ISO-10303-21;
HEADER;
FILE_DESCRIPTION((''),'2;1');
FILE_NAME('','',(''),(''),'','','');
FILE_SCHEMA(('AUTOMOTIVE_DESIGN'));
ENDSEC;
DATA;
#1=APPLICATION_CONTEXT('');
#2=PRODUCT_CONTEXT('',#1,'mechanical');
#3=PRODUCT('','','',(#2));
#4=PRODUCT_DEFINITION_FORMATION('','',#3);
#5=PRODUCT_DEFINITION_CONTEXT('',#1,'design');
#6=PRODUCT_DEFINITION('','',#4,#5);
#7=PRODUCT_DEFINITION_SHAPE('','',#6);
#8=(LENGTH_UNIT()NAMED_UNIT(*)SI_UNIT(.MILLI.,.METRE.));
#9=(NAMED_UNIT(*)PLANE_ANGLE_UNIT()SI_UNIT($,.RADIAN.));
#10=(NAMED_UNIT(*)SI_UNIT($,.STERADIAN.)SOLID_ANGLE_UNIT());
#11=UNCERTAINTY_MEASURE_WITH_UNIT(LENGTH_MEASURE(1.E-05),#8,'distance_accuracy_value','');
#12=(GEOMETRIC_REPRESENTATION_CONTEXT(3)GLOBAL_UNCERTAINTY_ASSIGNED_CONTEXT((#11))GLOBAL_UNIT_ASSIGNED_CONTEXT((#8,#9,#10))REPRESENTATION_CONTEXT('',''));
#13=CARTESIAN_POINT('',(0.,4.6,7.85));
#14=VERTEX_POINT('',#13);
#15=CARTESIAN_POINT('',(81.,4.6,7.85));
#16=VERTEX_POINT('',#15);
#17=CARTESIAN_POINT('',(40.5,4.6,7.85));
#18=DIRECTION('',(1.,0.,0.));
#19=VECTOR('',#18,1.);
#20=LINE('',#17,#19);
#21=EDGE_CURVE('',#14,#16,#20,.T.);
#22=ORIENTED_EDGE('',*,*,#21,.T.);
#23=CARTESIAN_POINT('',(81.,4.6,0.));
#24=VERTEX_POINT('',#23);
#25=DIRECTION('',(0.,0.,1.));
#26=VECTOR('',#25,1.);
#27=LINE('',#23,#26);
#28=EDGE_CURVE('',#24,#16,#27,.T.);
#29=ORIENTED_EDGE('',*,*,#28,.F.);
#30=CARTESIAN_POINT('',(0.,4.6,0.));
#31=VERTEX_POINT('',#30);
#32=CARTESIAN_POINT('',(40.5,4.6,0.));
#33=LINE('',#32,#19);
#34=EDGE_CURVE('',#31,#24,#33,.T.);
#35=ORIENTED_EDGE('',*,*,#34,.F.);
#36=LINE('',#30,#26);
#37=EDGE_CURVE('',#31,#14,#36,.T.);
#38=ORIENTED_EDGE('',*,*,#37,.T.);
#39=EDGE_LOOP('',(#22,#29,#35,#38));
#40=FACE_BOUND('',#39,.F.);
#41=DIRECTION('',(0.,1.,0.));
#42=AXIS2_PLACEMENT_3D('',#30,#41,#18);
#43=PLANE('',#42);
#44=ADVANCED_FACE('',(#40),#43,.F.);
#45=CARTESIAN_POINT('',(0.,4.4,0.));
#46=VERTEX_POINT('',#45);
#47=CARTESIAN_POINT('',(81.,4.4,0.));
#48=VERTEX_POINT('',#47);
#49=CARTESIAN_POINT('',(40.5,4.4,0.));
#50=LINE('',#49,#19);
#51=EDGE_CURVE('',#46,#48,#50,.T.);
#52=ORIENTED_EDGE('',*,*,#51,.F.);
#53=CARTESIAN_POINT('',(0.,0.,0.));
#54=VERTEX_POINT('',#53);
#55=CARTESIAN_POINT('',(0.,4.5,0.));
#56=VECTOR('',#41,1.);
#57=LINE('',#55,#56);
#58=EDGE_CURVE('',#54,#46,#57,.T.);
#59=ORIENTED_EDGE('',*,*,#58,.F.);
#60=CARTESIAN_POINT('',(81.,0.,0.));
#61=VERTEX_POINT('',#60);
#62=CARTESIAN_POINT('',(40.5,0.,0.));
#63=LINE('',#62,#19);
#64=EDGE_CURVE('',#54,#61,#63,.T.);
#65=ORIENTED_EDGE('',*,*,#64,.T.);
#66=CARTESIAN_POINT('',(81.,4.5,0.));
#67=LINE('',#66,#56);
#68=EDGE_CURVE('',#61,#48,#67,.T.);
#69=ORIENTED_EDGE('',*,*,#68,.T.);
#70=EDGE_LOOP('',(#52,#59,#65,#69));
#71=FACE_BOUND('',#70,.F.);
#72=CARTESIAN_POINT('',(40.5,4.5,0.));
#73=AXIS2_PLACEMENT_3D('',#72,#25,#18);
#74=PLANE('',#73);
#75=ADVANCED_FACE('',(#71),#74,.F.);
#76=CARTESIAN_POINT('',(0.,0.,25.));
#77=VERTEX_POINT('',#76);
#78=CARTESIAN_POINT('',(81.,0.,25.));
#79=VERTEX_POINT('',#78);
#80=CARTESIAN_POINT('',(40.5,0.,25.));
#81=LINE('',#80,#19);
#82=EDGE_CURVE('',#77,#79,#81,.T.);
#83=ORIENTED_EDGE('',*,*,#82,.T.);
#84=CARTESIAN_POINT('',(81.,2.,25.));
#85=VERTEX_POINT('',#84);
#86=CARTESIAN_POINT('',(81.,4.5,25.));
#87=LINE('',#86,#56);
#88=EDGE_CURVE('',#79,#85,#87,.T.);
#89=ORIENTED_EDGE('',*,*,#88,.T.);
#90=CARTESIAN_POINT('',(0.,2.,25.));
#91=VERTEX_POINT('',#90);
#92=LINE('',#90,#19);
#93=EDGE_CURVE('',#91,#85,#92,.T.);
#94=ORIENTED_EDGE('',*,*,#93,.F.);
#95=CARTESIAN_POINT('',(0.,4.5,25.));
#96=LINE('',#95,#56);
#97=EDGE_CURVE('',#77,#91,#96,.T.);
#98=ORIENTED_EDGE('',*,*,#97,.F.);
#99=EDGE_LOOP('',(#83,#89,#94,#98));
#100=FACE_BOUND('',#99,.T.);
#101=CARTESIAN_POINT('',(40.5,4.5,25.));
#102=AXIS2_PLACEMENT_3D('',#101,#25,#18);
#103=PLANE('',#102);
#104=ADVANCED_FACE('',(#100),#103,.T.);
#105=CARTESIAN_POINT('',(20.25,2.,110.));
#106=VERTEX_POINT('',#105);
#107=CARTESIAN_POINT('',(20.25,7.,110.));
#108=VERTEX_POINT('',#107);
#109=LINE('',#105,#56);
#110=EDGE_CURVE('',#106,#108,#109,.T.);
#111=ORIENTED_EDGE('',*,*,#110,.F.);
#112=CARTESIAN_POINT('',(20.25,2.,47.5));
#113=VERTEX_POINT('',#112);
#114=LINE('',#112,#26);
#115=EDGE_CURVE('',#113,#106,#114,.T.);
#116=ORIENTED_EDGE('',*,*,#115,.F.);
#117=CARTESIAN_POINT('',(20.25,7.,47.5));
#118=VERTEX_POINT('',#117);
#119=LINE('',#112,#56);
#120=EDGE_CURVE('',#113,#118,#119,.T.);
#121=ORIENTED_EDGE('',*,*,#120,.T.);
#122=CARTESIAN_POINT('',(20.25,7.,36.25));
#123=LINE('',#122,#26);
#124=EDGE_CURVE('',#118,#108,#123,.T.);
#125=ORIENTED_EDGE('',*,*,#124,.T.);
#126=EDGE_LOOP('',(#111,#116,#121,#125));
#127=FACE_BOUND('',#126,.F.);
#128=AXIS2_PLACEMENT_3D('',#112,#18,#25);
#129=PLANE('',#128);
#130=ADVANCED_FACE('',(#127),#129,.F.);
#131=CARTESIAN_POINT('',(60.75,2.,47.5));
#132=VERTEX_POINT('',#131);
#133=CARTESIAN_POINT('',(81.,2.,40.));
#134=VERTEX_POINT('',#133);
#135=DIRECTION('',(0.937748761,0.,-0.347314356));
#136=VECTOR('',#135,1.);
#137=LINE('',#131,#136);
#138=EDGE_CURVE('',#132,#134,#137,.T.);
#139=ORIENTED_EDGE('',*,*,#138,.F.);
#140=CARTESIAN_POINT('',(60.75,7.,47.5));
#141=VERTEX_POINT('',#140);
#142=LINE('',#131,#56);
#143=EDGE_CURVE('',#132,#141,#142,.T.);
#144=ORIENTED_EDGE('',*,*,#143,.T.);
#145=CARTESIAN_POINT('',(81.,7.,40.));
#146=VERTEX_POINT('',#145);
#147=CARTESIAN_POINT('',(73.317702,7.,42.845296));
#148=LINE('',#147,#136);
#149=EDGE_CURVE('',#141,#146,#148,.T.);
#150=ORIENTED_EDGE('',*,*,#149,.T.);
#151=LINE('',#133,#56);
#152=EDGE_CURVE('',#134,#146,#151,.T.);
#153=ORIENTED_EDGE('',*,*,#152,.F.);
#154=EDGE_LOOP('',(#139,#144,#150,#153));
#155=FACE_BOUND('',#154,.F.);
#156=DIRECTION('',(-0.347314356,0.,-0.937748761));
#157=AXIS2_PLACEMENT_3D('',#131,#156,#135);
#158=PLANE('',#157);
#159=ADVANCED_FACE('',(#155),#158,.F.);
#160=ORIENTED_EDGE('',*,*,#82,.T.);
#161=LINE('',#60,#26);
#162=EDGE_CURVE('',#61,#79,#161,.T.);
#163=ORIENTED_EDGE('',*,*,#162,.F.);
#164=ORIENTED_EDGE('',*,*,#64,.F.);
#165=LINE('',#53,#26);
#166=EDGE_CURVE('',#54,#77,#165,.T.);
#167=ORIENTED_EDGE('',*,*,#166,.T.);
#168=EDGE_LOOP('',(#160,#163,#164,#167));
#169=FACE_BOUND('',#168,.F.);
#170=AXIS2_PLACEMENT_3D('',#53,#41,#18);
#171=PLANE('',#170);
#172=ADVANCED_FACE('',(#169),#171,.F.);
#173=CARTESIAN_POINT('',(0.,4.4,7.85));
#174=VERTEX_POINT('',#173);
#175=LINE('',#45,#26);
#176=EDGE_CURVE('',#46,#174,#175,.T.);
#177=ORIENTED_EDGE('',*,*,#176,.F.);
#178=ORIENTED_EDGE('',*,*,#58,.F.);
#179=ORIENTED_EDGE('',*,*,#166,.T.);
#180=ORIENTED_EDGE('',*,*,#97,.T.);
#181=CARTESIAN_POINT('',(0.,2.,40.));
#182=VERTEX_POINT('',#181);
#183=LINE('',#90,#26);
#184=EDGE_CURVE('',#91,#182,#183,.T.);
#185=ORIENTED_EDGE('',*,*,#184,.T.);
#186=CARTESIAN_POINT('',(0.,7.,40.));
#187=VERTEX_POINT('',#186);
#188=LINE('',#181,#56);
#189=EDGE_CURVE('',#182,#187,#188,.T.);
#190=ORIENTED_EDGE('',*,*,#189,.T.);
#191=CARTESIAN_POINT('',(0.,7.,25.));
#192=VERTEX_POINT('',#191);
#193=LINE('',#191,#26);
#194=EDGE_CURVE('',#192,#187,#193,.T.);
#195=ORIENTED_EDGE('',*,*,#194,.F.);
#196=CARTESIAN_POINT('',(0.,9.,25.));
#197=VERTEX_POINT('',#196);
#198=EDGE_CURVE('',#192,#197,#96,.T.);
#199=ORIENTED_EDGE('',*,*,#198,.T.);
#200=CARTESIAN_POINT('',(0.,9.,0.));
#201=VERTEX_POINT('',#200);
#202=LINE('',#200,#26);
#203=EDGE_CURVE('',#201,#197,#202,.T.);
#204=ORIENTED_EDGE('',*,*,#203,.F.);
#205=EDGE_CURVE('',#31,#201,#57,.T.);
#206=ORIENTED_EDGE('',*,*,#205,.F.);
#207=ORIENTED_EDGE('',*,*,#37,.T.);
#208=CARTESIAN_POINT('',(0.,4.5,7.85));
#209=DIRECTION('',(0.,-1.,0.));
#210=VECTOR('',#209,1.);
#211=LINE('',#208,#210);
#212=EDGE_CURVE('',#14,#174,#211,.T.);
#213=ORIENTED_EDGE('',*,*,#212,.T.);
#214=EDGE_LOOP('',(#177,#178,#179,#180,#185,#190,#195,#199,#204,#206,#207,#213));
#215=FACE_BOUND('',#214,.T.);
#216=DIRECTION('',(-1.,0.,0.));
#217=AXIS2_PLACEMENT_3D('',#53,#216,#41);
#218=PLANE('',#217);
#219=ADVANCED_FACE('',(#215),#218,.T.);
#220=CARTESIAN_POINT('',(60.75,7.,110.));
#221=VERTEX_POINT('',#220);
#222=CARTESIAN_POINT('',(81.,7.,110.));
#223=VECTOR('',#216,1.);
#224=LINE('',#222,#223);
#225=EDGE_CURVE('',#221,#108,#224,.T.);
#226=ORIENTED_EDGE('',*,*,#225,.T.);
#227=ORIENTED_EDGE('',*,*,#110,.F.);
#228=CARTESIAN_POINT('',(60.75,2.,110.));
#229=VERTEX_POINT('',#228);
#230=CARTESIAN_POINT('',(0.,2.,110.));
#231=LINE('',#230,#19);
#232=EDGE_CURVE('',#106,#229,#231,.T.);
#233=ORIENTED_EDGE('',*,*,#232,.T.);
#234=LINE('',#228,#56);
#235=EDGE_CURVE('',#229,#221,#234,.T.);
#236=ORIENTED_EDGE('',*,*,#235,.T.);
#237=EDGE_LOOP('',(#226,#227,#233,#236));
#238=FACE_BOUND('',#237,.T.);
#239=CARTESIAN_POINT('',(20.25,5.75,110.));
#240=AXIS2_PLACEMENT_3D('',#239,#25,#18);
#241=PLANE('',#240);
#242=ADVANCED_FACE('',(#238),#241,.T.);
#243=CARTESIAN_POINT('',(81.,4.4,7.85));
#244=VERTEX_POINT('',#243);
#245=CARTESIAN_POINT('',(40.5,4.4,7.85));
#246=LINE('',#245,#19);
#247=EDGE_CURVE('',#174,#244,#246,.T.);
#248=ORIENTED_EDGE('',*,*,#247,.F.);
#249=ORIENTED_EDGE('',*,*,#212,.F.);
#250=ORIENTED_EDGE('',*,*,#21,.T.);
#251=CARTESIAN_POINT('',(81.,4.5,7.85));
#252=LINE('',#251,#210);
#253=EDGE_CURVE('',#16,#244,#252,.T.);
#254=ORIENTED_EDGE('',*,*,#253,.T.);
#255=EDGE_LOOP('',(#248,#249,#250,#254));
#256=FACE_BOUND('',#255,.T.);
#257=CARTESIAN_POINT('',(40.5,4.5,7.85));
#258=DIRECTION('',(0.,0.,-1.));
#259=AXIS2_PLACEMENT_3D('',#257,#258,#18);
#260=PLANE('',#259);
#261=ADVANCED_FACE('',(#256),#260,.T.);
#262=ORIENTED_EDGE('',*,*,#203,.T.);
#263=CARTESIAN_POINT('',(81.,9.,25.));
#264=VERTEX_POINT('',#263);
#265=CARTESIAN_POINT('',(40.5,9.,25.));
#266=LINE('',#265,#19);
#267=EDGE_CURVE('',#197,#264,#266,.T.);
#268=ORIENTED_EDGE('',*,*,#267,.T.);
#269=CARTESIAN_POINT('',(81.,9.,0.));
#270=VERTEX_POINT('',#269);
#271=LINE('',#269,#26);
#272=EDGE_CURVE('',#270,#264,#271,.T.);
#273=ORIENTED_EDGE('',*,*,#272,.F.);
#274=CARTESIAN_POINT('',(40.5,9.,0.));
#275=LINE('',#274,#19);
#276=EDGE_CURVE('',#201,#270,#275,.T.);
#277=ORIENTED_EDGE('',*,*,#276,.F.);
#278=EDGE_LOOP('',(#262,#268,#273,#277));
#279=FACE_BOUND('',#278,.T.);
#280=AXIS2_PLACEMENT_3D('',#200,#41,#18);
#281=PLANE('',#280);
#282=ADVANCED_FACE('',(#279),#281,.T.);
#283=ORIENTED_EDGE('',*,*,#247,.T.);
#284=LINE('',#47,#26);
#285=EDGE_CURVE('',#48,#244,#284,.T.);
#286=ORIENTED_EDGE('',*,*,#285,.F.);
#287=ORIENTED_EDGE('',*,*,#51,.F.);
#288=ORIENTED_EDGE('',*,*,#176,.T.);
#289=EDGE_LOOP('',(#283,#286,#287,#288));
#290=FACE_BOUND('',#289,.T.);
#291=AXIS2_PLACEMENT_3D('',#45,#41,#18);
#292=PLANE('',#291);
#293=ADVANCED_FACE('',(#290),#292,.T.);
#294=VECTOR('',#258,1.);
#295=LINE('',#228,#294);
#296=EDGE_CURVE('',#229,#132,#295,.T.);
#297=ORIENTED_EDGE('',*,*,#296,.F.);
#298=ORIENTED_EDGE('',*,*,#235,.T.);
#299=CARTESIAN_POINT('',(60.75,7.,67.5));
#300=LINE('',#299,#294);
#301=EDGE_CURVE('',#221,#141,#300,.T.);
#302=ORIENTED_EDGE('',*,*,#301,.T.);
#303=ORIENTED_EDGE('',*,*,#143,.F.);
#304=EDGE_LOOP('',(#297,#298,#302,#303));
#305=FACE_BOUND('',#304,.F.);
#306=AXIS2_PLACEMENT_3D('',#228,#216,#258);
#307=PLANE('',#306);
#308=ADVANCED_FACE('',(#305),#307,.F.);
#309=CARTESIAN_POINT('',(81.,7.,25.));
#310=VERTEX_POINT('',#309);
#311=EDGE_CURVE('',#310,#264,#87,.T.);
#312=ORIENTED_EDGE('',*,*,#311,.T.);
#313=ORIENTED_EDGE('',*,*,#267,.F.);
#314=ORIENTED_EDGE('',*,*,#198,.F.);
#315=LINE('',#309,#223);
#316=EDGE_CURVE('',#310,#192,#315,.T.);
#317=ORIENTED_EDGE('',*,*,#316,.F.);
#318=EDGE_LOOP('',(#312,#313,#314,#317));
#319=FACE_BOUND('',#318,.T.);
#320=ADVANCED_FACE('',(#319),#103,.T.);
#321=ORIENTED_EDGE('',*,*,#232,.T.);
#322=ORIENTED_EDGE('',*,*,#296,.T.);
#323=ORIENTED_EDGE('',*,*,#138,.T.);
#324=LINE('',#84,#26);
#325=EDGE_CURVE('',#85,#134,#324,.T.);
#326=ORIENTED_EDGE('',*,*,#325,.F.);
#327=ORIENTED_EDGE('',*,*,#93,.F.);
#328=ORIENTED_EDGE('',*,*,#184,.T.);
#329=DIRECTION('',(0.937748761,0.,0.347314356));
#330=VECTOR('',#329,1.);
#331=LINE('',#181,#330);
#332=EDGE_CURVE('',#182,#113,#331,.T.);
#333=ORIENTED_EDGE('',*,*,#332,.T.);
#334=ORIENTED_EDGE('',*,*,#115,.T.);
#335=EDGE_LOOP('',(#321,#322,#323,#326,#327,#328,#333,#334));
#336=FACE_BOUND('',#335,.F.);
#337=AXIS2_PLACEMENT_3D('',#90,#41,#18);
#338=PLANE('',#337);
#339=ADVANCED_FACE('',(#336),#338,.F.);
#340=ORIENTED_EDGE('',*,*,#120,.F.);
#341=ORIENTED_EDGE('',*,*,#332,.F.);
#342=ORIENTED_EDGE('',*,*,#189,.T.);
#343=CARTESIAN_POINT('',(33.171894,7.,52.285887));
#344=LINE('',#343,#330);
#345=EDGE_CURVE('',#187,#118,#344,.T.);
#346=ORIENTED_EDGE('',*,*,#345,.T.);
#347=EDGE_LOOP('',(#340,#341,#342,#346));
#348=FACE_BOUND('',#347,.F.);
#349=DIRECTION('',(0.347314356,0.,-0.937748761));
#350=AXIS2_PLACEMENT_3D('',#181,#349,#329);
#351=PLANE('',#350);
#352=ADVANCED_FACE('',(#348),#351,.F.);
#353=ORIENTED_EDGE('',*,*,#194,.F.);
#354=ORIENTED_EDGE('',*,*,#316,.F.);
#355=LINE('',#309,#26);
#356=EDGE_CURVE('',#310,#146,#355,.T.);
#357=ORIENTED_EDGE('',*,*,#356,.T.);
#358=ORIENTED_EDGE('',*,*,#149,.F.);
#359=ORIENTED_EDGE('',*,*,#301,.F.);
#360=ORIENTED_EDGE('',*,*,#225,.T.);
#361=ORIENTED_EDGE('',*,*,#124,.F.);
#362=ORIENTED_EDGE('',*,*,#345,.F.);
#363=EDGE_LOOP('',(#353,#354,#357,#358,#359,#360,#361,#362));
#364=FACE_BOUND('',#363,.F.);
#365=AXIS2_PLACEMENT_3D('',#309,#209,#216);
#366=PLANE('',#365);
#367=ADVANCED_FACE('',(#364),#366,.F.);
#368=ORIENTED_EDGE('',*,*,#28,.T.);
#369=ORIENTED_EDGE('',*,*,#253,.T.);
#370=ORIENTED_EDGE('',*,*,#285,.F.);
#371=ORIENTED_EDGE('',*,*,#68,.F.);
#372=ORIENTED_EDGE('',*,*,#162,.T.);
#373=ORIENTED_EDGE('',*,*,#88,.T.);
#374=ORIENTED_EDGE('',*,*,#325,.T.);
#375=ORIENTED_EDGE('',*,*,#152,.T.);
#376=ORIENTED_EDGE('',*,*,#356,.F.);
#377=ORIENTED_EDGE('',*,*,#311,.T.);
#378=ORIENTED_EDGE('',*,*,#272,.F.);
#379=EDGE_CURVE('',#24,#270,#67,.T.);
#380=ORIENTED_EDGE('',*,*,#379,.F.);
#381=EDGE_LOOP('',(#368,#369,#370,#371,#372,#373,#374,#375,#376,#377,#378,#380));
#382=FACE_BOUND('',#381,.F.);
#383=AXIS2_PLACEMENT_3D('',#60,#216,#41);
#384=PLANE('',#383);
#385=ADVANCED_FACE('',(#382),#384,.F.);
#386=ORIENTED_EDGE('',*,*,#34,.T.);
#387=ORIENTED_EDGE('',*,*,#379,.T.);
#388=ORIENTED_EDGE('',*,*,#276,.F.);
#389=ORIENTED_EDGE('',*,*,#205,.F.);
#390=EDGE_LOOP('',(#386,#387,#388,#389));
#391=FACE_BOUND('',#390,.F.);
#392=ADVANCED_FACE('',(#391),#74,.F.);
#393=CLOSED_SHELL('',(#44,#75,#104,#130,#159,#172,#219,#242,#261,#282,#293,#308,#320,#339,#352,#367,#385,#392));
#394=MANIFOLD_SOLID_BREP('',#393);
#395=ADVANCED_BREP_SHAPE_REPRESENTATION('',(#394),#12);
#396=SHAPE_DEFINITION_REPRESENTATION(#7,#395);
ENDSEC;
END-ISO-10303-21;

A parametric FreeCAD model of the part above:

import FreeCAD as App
import Part
import Sketcher
from FreeCAD import Vector


def add_polygon(sketch, points):
    """Adds a closed chain of lines whose ends are joined by coincident constraints."""
    first, n = sketch.GeometryCount, len(points)
    for a, b in zip(points, points[1:] + points[:1]):
        sketch.addGeometry(Part.LineSegment(App.Vector(*a, 0), App.Vector(*b, 0)), False)
    for i in range(n):
        sketch.addConstraint(Sketcher.Constraint("Coincident", first + i, 2, first + (i + 1) % n, 1))

doc = App.newDocument("Part")
body = doc.addObject("PartDesign::Body", "Body")

# Sketch on XY plane
sketch1 = body.newObject("Sketcher::SketchObject", "Sketch")
sketch1.AttachmentSupport = (doc.getObject("XY_Plane"), [""])
sketch1.MapMode = "FlatFace"
add_polygon(sketch1, [(0, 9), (0, 0), (81, 0), (81, 9)])  # lines 0-3
sketch1.addConstraint([
    Sketcher.Constraint("Vertical", 0),
    Sketcher.Constraint("Horizontal", 1),
    Sketcher.Constraint("Vertical", 2),
    Sketcher.Constraint("Horizontal", 3),
    Sketcher.Constraint("Coincident", 0, 2, -1, 1),
    Sketcher.Constraint("DistanceX", 1, 1, 1, 2, 81.0),
    Sketcher.Constraint("DistanceY", 0, 2, 0, 1, 9.0),
])
pad1 = body.newObject("PartDesign::Pad", "Pad")
pad1.Profile = sketch1
pad1.Length = 25

# Sketch on XY plane
sketch2 = body.newObject("Sketcher::SketchObject", "Sketch001")
sketch2.AttachmentSupport = (doc.getObject("XY_Plane"), [""])
sketch2.MapMode = "FlatFace"
add_polygon(sketch2, [(0, 4.4), (0, 4.6), (81, 4.6), (81, 4.4)])  # lines 0-3
sketch2.addConstraint([
    Sketcher.Constraint("Vertical", 0),
    Sketcher.Constraint("Horizontal", 1),
    Sketcher.Constraint("Vertical", 2),
    Sketcher.Constraint("Horizontal", 3),
    Sketcher.Constraint("PointOnObject", 0, 2, -2),
    Sketcher.Constraint("DistanceX", 1, 1, 1, 2, 81.0),
    Sketcher.Constraint("DistanceY", 0, 1, 0, 2, 0.2),
    Sketcher.Constraint("DistanceY", -1, 1, 0, 2, 4.6),
])
pocket1 = body.newObject("PartDesign::Pocket", "Pocket")
pocket1.Profile = sketch2
pocket1.Length = 7.85
pocket1.Reversed = True

# Sketch on XY plane
sketch3 = body.newObject("Sketcher::SketchObject", "Sketch002")
sketch3.AttachmentSupport = (doc.getObject("XY_Plane"), [""])
sketch3.MapMode = "FlatFace"
sketch3.AttachmentOffset = App.Placement(Vector(0, 0, 25), App.Rotation())
add_polygon(sketch3, [(0, 7), (0, 2), (81, 2), (81, 7)])  # lines 0-3
sketch3.addConstraint([
    Sketcher.Constraint("Vertical", 0),
    Sketcher.Constraint("Horizontal", 1),
    Sketcher.Constraint("Vertical", 2),
    Sketcher.Constraint("Horizontal", 3),
    Sketcher.Constraint("PointOnObject", 0, 2, -2),
    Sketcher.Constraint("DistanceX", 1, 1, 1, 2, 81.0),
    Sketcher.Constraint("DistanceY", 0, 2, 0, 1, 5.0),
    Sketcher.Constraint("DistanceY", -1, 1, 0, 2, 2.0),
])
pad2 = body.newObject("PartDesign::Pad", "Pad001")
pad2.Profile = sketch3
pad2.Length = 85

# Sketch on XZ plane
sketch4 = body.newObject("Sketcher::SketchObject", "Sketch003")
sketch4.AttachmentSupport = (doc.getObject("XZ_Plane"), [""])
sketch4.MapMode = "FlatFace"
sketch4.AttachmentOffset = App.Placement(Vector(0, 0, -2), App.Rotation())
add_polygon(sketch4, [(0, 110), (0, 40), (20, 48), (20, 110)])  # lines 0-3
add_polygon(sketch4, [(61, 48), (81, 40), (81, 110), (61, 110)])  # lines 4-7
sketch4.addConstraint([
    Sketcher.Constraint("Vertical", 0),
    Sketcher.Constraint("Vertical", 2),
    Sketcher.Constraint("Horizontal", 3),
    Sketcher.Constraint("Vertical", 5),
    Sketcher.Constraint("Horizontal", 6),
    Sketcher.Constraint("Vertical", 7),
    Sketcher.Constraint("PointOnObject", 0, 2, -2),
    Sketcher.Constraint("Horizontal", 0, 2, 4, 2),
    Sketcher.Constraint("Horizontal", 3, 2, 5, 2),
    Sketcher.Constraint("Horizontal", 1, 2, 7, 2),
    Sketcher.Constraint("Equal", 3, 6),
    Sketcher.Constraint("DistanceY", 0, 2, 0, 1, 70.0),
    Sketcher.Constraint("DistanceY", 2, 1, 2, 2, 62.5),
    Sketcher.Constraint("DistanceY", -1, 1, 0, 2, 40.0),
    Sketcher.Constraint("DistanceX", -1, 1, 4, 2, 81.0),
    Sketcher.Constraint("DistanceX", 3, 2, 3, 1, 20.25),
])
pocket2 = body.newObject("PartDesign::Pocket", "Pocket001")
pocket2.Profile = sketch4
pocket2.Length = 25

doc.recompute()
